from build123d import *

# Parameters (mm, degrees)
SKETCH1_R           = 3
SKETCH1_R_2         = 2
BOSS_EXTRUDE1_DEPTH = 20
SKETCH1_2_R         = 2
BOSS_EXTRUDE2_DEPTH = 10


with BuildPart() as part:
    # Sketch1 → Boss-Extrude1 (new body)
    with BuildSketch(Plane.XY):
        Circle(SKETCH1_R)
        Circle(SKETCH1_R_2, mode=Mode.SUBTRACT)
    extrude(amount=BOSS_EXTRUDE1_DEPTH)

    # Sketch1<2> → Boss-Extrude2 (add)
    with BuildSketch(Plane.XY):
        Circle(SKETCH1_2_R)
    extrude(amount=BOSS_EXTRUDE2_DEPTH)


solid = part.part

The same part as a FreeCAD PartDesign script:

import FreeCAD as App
import Part
import Sketcher
from FreeCAD import Vector

doc = App.newDocument("Part")
params = doc.addObject("Spreadsheet::Sheet", "Params")
for row, (alias, value) in enumerate([
    ("sketch1_diameter", "6 mm"),
    ("sketch1_diameter2", "4 mm"),
    ("pad1_length", "20 mm"),
    ("sketch2_diameter", "4 mm"),
    ("pad2_length", "10 mm"),
], start=1):
    params.set(f"A{row}", alias)
    params.set(f"B{row}", "=" + value)
    params.setAlias(f"B{row}", alias)

body = doc.addObject("PartDesign::Body", "Body")

sketch1 = doc.addObject("Sketcher::SketchObject", "Sketch")
body.addObject(sketch1)
sketch1.AttachmentSupport = (doc.XY_Plane, [""])
sketch1.MapMode = "FlatFace"
sketch1.addGeometry([
    Part.Circle(Vector(0, 0, 0), Vector(0, 0, 1), 3),
    Part.Circle(Vector(0, 0, 0), Vector(0, 0, 1), 2),
], False)
sketch1.addConstraint([
    Sketcher.Constraint("Coincident", 0, 3, -1, 1),
    Sketcher.Constraint("Coincident", 1, 3, -1, 1),
    Sketcher.Constraint("Diameter", 0, 6.0),
    Sketcher.Constraint("Diameter", 1, 4.0),
])
sketch1.setExpression("Constraints[2]", "Params.sketch1_diameter")
sketch1.setExpression("Constraints[3]", "Params.sketch1_diameter2")
pad1 = doc.addObject("PartDesign::Pad", "Pad")
body.addObject(pad1)
pad1.Profile = sketch1
pad1.setExpression("Length", "Params.pad1_length")

sketch2 = doc.addObject("Sketcher::SketchObject", "Sketch001")
body.addObject(sketch2)
sketch2.AttachmentSupport = (doc.XY_Plane, [""])
sketch2.MapMode = "FlatFace"
sketch2.addGeometry(Part.Circle(Vector(0, 0, 0), Vector(0, 0, 1), 2), False)
sketch2.addConstraint([
    Sketcher.Constraint("Coincident", 0, 3, -1, 1),
    Sketcher.Constraint("Diameter", 0, 4.0),
])
sketch2.setExpression("Constraints[1]", "Params.sketch2_diameter")
pad2 = doc.addObject("PartDesign::Pad", "Pad001")
body.addObject(pad2)
pad2.Profile = sketch2
pad2.setExpression("Length", "Params.pad2_length")

doc.recompute()
